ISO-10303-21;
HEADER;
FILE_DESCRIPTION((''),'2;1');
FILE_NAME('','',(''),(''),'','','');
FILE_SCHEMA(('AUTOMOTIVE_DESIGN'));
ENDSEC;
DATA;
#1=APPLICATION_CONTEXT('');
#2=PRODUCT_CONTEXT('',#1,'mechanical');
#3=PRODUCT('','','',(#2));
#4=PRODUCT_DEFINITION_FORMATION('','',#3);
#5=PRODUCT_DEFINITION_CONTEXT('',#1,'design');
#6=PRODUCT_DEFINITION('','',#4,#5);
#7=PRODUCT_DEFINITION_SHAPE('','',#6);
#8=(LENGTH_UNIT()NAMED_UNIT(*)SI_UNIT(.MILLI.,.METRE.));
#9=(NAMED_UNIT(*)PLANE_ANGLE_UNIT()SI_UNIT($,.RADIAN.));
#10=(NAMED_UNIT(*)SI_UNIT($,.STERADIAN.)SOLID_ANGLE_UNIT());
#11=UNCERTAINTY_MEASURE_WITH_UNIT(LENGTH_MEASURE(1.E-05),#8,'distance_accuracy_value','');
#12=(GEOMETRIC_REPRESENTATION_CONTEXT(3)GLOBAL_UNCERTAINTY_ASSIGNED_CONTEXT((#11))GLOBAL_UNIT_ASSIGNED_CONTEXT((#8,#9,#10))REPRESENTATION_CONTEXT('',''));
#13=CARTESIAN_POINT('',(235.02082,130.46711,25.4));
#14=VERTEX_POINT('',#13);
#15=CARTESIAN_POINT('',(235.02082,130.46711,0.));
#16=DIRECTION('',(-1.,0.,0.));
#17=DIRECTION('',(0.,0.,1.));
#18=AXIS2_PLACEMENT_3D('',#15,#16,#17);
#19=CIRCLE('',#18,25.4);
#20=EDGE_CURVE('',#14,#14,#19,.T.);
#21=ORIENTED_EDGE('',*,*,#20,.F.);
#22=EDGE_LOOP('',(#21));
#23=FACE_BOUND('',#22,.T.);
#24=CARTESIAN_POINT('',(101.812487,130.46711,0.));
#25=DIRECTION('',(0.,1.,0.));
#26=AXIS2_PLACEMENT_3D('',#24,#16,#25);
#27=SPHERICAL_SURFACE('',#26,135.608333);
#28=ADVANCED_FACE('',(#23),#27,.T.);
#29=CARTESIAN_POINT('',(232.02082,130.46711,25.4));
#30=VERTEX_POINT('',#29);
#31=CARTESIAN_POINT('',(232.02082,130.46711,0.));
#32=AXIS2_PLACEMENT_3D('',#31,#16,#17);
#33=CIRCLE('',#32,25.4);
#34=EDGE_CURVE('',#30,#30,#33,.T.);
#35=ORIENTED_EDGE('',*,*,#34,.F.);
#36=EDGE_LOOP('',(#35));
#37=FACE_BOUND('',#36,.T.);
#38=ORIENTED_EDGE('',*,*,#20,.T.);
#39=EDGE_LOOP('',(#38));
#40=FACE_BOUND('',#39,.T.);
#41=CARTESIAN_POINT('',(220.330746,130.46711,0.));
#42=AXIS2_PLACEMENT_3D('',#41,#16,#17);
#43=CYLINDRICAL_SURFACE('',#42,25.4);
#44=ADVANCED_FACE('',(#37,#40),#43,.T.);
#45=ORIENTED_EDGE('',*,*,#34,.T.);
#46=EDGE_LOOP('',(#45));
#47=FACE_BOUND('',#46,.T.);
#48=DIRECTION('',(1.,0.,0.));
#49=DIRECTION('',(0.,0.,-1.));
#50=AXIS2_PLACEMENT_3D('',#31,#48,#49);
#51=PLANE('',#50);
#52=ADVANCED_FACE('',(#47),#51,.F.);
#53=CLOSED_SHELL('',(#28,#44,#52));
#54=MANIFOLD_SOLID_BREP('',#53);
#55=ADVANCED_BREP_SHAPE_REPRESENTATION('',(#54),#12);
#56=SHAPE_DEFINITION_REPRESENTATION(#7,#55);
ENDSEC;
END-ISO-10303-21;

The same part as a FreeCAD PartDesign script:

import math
import FreeCAD as App
import Part
import Sketcher
from FreeCAD import Vector

doc = App.newDocument("Part")
body = doc.addObject("PartDesign::Body", "Body")

sketch1 = body.newObject("Sketcher::SketchObject", "Sketch")
sketch1.AttachmentSupport = (doc.getObject("XY_Plane"), [""])
sketch1.MapMode = "FlatFace"
sketch1.addGeometry(Part.LineSegment(Vector(232, 155.9, 0), Vector(232, 130.5, 0)), False)
sketch1.addGeometry(Part.LineSegment(Vector(232, 130.5, 0), Vector(237.4, 130.5, 0)), False)
sketch1.addGeometry(Part.ArcOfCircle(Part.Circle(Vector(101.8, 130.5, 0), Vector(0, 0, 1), 135.6), math.radians(0), math.radians(10.8)), False)
sketch1.addGeometry(Part.LineSegment(Vector(235, 155.9, 0), Vector(232, 155.9, 0)), False)
sketch1.addGeometry(Part.LineSegment(Vector(101.8, 130.5, 0), Vector(237.4, 130.5, 0)), True)
sketch1.addConstraint(Sketcher.Constraint("Coincident", 0, 2, 1, 1))
sketch1.addConstraint(Sketcher.Constraint("Coincident", 1, 2, 2, 1))
sketch1.addConstraint(Sketcher.Constraint("Coincident", 2, 2, 3, 1))
sketch1.addConstraint(Sketcher.Constraint("Coincident", 3, 2, 0, 1))
sketch1.addConstraint(Sketcher.Constraint("Vertical", 0))
sketch1.addConstraint(Sketcher.Constraint("Horizontal", 1))
sketch1.addConstraint(Sketcher.Constraint("Horizontal", 3))
sketch1.addConstraint(Sketcher.Constraint("Horizontal", 4))
sketch1.addConstraint(Sketcher.Constraint("Coincident", 4, 1, 2, 3))
sketch1.addConstraint(Sketcher.Constraint("Coincident", 4, 2, 1, 2))
sketch1.addConstraint(Sketcher.Constraint("DistanceX", 3, 2, 3, 1, 3.0))
sketch1.addConstraint(Sketcher.Constraint("DistanceX", 1, 1, 1, 2, 5.4))
sketch1.addConstraint(Sketcher.Constraint("DistanceY", 0, 2, 0, 1, 25.4))
sketch1.addConstraint(Sketcher.Constraint("DistanceY", -1, 1, 2, 3, 130.46711))
sketch1.addConstraint(Sketcher.Constraint("DistanceX", -1, 1, 0, 2, 232.02082))
revolution = body.newObject("PartDesign::Revolution", "Revolution")
revolution.Profile = sketch1
revolution.ReferenceAxis = (sketch1, ["Axis0"])
revolution.Angle = 360

doc.recompute()
